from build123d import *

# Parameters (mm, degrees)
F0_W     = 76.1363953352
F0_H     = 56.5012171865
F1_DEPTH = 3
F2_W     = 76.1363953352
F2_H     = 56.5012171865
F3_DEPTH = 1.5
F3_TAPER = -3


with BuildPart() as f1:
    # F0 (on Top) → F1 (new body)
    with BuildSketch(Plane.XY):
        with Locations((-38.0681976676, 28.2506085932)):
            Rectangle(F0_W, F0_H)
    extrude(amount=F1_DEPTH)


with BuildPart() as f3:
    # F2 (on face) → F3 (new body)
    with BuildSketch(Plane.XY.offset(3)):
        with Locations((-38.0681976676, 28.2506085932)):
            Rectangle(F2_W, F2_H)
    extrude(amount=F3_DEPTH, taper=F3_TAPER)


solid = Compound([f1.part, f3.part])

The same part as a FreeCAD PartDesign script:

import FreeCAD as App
import Part
import Sketcher

V = App.Vector
Q = App.Units.Quantity

doc = App.newDocument("Part")
body = doc.addObject("PartDesign::Body", "Body")

sketch1 = body.newObject("Sketcher::SketchObject", "Sketch")
sketch1.AttachmentSupport = (doc.getObject("XY_Plane"), [""])
sketch1.MapMode = "FlatFace"
sketch1.addGeometry(Part.LineSegment(V(-76, 57, 0), V(-76, 0, 0)), False)
sketch1.addGeometry(Part.LineSegment(V(-76, 0, 0), V(0, 0, 0)), False)
sketch1.addGeometry(Part.LineSegment(V(0, 0, 0), V(0, 57, 0)), False)
sketch1.addGeometry(Part.LineSegment(V(0, 57, 0), V(-76, 57, 0)), False)
sketch1.addConstraint(Sketcher.Constraint("Coincident", 0, 2, 1, 1))
sketch1.addConstraint(Sketcher.Constraint("Coincident", 1, 2, 2, 1))
sketch1.addConstraint(Sketcher.Constraint("Coincident", 2, 2, 3, 1))
sketch1.addConstraint(Sketcher.Constraint("Coincident", 3, 2, 0, 1))
sketch1.addConstraint(Sketcher.Constraint("Vertical", 0))
sketch1.addConstraint(Sketcher.Constraint("Horizontal", 1))
sketch1.addConstraint(Sketcher.Constraint("Vertical", 2))
sketch1.addConstraint(Sketcher.Constraint("Horizontal", 3))
sketch1.addConstraint(Sketcher.Constraint("Coincident", 1, 2, -1, 1))
sketch1.addConstraint(Sketcher.Constraint("DistanceX", 1, 1, 1, 2, Q("76.136395 mm")))
sketch1.addConstraint(Sketcher.Constraint("DistanceY", 0, 2, 0, 1, Q("56.501217 mm")))
pad1 = body.newObject("PartDesign::Pad", "Pad")
pad1.Profile = sketch1
pad1.Length = 3
body2 = doc.addObject("PartDesign::Body", "Body001")

sketch2 = body2.newObject("Sketcher::SketchObject", "Sketch001")
sketch2.AttachmentSupport = (doc.getObject("XY_Plane001"), [""])
sketch2.MapMode = "FlatFace"
sketch2.AttachmentOffset = App.Placement(V(0, 0, 3), App.Rotation())
sketch2.addGeometry(Part.LineSegment(V(-76, 57, 0), V(-76, 0, 0)), False)
sketch2.addGeometry(Part.LineSegment(V(-76, 0, 0), V(0, 0, 0)), False)
sketch2.addGeometry(Part.LineSegment(V(0, 0, 0), V(0, 57, 0)), False)
sketch2.addGeometry(Part.LineSegment(V(0, 57, 0), V(-76, 57, 0)), False)
sketch2.addConstraint(Sketcher.Constraint("Coincident", 0, 2, 1, 1))
sketch2.addConstraint(Sketcher.Constraint("Coincident", 1, 2, 2, 1))
sketch2.addConstraint(Sketcher.Constraint("Coincident", 2, 2, 3, 1))
sketch2.addConstraint(Sketcher.Constraint("Coincident", 3, 2, 0, 1))
sketch2.addConstraint(Sketcher.Constraint("Vertical", 0))
sketch2.addConstraint(Sketcher.Constraint("Horizontal", 1))
sketch2.addConstraint(Sketcher.Constraint("Vertical", 2))
sketch2.addConstraint(Sketcher.Constraint("Horizontal", 3))
sketch2.addConstraint(Sketcher.Constraint("Coincident", 1, 2, -1, 1))
sketch2.addConstraint(Sketcher.Constraint("DistanceX", 1, 1, 1, 2, Q("76.136395 mm")))
sketch2.addConstraint(Sketcher.Constraint("DistanceY", 0, 2, 0, 1, Q("56.501217 mm")))
pad2 = body2.newObject("PartDesign::Pad", "Pad001")
pad2.Profile = sketch2
pad2.Length = 1.5
pad2.TaperAngle = 3

doc.recompute()
